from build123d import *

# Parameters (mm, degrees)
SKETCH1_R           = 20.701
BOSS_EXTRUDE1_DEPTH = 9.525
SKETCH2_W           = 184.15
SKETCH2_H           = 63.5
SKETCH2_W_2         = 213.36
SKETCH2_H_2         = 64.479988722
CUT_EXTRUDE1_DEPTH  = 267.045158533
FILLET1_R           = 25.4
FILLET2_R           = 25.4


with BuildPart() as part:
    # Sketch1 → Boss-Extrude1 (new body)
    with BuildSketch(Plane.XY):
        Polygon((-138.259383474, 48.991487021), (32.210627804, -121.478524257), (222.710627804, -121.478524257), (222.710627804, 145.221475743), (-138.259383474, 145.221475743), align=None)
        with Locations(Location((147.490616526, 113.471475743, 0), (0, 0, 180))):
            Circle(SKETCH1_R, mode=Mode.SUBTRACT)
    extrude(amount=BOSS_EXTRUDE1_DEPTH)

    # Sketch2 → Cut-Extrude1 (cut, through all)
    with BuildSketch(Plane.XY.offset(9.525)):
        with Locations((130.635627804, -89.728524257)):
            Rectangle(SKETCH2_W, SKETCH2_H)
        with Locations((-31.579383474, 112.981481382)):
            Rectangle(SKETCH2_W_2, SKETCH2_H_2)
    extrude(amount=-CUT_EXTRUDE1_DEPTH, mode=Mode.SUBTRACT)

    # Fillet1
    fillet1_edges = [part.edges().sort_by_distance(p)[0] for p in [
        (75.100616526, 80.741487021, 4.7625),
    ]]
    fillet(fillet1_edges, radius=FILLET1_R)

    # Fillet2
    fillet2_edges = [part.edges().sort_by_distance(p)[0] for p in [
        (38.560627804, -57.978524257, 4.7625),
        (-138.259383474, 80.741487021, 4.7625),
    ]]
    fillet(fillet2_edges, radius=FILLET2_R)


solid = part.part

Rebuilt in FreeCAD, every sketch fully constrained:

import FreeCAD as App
import Part
import Sketcher

V = App.Vector
Q = App.Units.Quantity


def edges_at(feature, points):
    """Names of the edges that pass closest to the given points."""
    edges = feature.Shape.Edges
    near = lambda p: min(range(len(edges)), key=lambda i: edges[i].distToShape(Part.Vertex(*p))[0])
    return sorted({f"Edge{near(p) + 1}" for p in points})


def add_polygon(sketch, points):
    """Adds a closed chain of lines whose ends are joined by coincident constraints."""
    first, n = sketch.GeometryCount, len(points)
    for a, b in zip(points, points[1:] + points[:1]):
        sketch.addGeometry(Part.LineSegment(App.Vector(*a, 0), App.Vector(*b, 0)), False)
    for i in range(n):
        sketch.addConstraint(Sketcher.Constraint("Coincident", first + i, 2, first + (i + 1) % n, 1))

doc = App.newDocument("Part")
body = doc.addObject("PartDesign::Body", "Body")

# Sketch on XY plane
sketch1 = doc.addObject("Sketcher::SketchObject", "Sketch")
body.addObject(sketch1)
sketch1.AttachmentSupport = (doc.XY_Plane, [""])
sketch1.MapMode = "FlatFace"
add_polygon(sketch1, [(-138.259383, 48.991487), (32.210628, -121.478524), (222.710628, -121.478524), (222.710628, 145.221476), (-138.259383, 145.221476)])  # lines 0-4
sketch1.addGeometry(Part.Circle(V(147.490617, 113.471476, 0), V(0, 0, 1), 20.701), False)  # 5
sketch1.addConstraint([
    Sketcher.Constraint("Horizontal", 1),
    Sketcher.Constraint("Vertical", 2),
    Sketcher.Constraint("Horizontal", 3),
    Sketcher.Constraint("Vertical", 4),
    Sketcher.Constraint("Diameter", 5, Q("1.63 in")),
    Sketcher.Constraint("DistanceX", 1, 1, 1, 2, Q("7.5 in")),
    Sketcher.Constraint("DistanceY", 2, 1, 2, 2, Q("10.5 in")),
    Sketcher.Constraint("Angle", 0, Q("-45 deg")),
    Sketcher.Constraint("DistanceY", 0, 2, 5, 3, Q("9.25 in")),
    Sketcher.Constraint("DistanceX", 3, 2, 5, 3, Q("11.25 in")),
    Sketcher.Constraint("Distance", 0, Q("241.081002 mm")),
    Sketcher.Constraint("DistanceX", -1, 1, 5, 3, Q("147.490617 mm")),
    Sketcher.Constraint("DistanceY", -1, 1, 5, 3, Q("113.471476 mm")),
])
pad1 = doc.addObject("PartDesign::Pad", "Pad")
body.addObject(pad1)
pad1.Profile = sketch1
pad1.Length = Q("0.375 in")

# Sketch on XY plane
sketch2 = doc.addObject("Sketcher::SketchObject", "Sketch001")
body.addObject(sketch2)
sketch2.AttachmentSupport = (doc.XY_Plane, [""])
sketch2.MapMode = "FlatFace"
sketch2.AttachmentOffset = App.Placement(V(0, 0, 0.375 * 25.4), App.Rotation())
add_polygon(sketch2, [(38.560628, -57.978524), (38.560628, -121.478524), (222.710628, -121.478524), (222.710628, -57.978524)])  # lines 0-3
add_polygon(sketch2, [(-138.259383, 145.221476), (-138.259383, 80.741487), (75.100617, 80.741487), (75.100617, 145.221476)])  # lines 4-7
sketch2.addConstraint([
    Sketcher.Constraint("Vertical", 0),
    Sketcher.Constraint("Horizontal", 1),
    Sketcher.Constraint("Vertical", 2),
    Sketcher.Constraint("Horizontal", 3),
    Sketcher.Constraint("Vertical", 4),
    Sketcher.Constraint("Horizontal", 5),
    Sketcher.Constraint("Vertical", 6),
    Sketcher.Constraint("Horizontal", 7),
    Sketcher.Constraint("DistanceX", 5, 1, 5, 2, Q("8.4 in")),
    Sketcher.Constraint("DistanceY", 0, 2, 0, 1, Q("2.5 in")),
    Sketcher.Constraint("DistanceY", 3, 2, 6, 2, Q("8 in")),
    Sketcher.Constraint("DistanceX", 1, 1, 1, 2, Q("7.25 in")),
    Sketcher.Constraint("DistanceY", 4, 2, 4, 1, Q("64.479989 mm")),
    Sketcher.Constraint("DistanceX", 4, 2, 3, 2, Q("176.820011 mm")),
    Sketcher.Constraint("DistanceX", -1, 1, 0, 2, Q("38.560628 mm")),
    Sketcher.Constraint("DistanceY", 0, 2, -1, 1, Q("121.478524 mm")),
])
pocket1 = doc.addObject("PartDesign::Pocket", "Pocket")
body.addObject(pocket1)
pocket1.Profile = sketch2
pocket1.Type = "ThroughAll"
doc.recompute()

fillet = doc.addObject("PartDesign::Fillet", "Fillet")
body.addObject(fillet)
fillet.Base = (pocket1, edges_at(pocket1, [(75.101, 80.741, 4.763)]))
fillet.Radius = Q("1 in")
doc.recompute()

fillet2 = doc.addObject("PartDesign::Fillet", "Fillet001")
body.addObject(fillet2)
fillet2.Base = (fillet, edges_at(fillet, [(38.561, -57.979, 4.763), (-138.259, 80.741, 4.763)]))
fillet2.Radius = Q("1 in")

doc.recompute()
